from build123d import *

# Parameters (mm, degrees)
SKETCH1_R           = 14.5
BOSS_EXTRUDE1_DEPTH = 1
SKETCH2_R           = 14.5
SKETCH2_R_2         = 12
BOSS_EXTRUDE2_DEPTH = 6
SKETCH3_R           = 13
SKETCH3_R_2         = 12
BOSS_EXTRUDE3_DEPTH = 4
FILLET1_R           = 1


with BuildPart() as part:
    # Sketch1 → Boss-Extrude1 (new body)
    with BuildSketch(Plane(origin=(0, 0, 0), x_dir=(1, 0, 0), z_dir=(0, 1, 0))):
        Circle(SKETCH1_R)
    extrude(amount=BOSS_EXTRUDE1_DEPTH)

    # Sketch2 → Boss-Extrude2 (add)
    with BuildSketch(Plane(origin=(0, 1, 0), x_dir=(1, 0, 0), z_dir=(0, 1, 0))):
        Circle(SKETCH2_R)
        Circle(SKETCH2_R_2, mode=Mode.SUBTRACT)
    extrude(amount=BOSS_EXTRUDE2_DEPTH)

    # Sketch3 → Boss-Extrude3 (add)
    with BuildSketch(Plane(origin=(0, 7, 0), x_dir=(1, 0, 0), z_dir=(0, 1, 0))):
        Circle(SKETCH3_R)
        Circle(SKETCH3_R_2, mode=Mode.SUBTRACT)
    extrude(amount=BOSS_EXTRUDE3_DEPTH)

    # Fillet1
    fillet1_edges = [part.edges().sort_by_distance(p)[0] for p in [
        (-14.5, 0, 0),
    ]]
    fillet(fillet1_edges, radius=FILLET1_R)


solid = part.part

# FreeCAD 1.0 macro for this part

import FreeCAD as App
import Part
import Sketcher


def edges_at(feature, points):
    """Names of the edges that pass closest to the given points."""
    edges = feature.Shape.Edges
    near = lambda p: min(range(len(edges)), key=lambda i: edges[i].distToShape(Part.Vertex(*p))[0])
    return sorted({f"Edge{near(p) + 1}" for p in points})

doc = App.newDocument("Part")
params = doc.addObject("Spreadsheet::Sheet", "Params")
for row, (alias, value) in enumerate([
    ("sketch1_diameter", "29 mm"),
    ("pad1_length", "1 mm"),
    ("sketch2_diameter", "29 mm"),
    ("sketch2_diameter2", "24 mm"),
    ("pad2_length", "6 mm"),
    ("sketch3_diameter", "26 mm"),
    ("sketch3_diameter2", "24 mm"),
    ("pad3_length", "4 mm"),
    ("fillet_radius", "1 mm"),
], start=1):
    params.set(f"A{row}", alias)
    params.set(f"B{row}", "=" + value)
    params.setAlias(f"B{row}", alias)

body = doc.addObject("PartDesign::Body", "Body")

# Sketch on XZ plane
sketch1 = body.newObject("Sketcher::SketchObject", "Sketch")
sketch1.AttachmentSupport = (doc.getObject("XZ_Plane"), [""])
sketch1.MapMode = "FlatFace"
sketch1.addGeometry(Part.Circle(App.Vector(0, 0, 0), App.Vector(0, 0, 1), 14), False)
sketch1.addConstraint([
    Sketcher.Constraint("Coincident", 0, 3, -1, 1),
    Sketcher.Constraint("Diameter", 0, 29.0),
])
sketch1.setExpression("Constraints[1]", "Params.sketch1_diameter")
pad1 = body.newObject("PartDesign::Pad", "Pad")
pad1.Profile = sketch1
pad1.setExpression("Length", "Params.pad1_length")
pad1.Reversed = True

# Sketch on XZ plane
sketch2 = body.newObject("Sketcher::SketchObject", "Sketch001")
sketch2.AttachmentSupport = (doc.getObject("XZ_Plane"), [""])
sketch2.MapMode = "FlatFace"
sketch2.AttachmentOffset = App.Placement(App.Vector(0, 0, -1), App.Rotation())
sketch2.addGeometry([
    Part.Circle(App.Vector(0, 0, 0), App.Vector(0, 0, 1), 14),
    Part.Circle(App.Vector(0, 0, 0), App.Vector(0, 0, 1), 12),
], False)
sketch2.addConstraint([
    Sketcher.Constraint("Coincident", 0, 3, -1, 1),
    Sketcher.Constraint("Coincident", 1, 3, -1, 1),
    Sketcher.Constraint("Diameter", 0, 29.0),
    Sketcher.Constraint("Diameter", 1, 24.0),
])
sketch2.setExpression("Constraints[2]", "Params.sketch2_diameter")
sketch2.setExpression("Constraints[3]", "Params.sketch2_diameter2")
pad2 = body.newObject("PartDesign::Pad", "Pad001")
pad2.Profile = sketch2
pad2.setExpression("Length", "Params.pad2_length")
pad2.Reversed = True

# Sketch on XZ plane
sketch3 = body.newObject("Sketcher::SketchObject", "Sketch002")
sketch3.AttachmentSupport = (doc.getObject("XZ_Plane"), [""])
sketch3.MapMode = "FlatFace"
sketch3.AttachmentOffset = App.Placement(App.Vector(0, 0, -7), App.Rotation())
sketch3.addGeometry([
    Part.Circle(App.Vector(0, 0, 0), App.Vector(0, 0, 1), 13),
    Part.Circle(App.Vector(0, 0, 0), App.Vector(0, 0, 1), 12),
], False)
sketch3.addConstraint([
    Sketcher.Constraint("Coincident", 0, 3, -1, 1),
    Sketcher.Constraint("Coincident", 1, 3, -1, 1),
    Sketcher.Constraint("Diameter", 0, 26.0),
    Sketcher.Constraint("Diameter", 1, 24.0),
])
sketch3.setExpression("Constraints[2]", "Params.sketch3_diameter")
sketch3.setExpression("Constraints[3]", "Params.sketch3_diameter2")
pad3 = body.newObject("PartDesign::Pad", "Pad002")
pad3.Profile = sketch3
pad3.setExpression("Length", "Params.pad3_length")
pad3.Reversed = True
doc.recompute()

fillet = body.newObject("PartDesign::Fillet", "Fillet")
fillet.Base = (pad3, edges_at(pad3, [(-14.5, 0, 0)]))
fillet.setExpression("Radius", "Params.fillet_radius")

doc.recompute()
